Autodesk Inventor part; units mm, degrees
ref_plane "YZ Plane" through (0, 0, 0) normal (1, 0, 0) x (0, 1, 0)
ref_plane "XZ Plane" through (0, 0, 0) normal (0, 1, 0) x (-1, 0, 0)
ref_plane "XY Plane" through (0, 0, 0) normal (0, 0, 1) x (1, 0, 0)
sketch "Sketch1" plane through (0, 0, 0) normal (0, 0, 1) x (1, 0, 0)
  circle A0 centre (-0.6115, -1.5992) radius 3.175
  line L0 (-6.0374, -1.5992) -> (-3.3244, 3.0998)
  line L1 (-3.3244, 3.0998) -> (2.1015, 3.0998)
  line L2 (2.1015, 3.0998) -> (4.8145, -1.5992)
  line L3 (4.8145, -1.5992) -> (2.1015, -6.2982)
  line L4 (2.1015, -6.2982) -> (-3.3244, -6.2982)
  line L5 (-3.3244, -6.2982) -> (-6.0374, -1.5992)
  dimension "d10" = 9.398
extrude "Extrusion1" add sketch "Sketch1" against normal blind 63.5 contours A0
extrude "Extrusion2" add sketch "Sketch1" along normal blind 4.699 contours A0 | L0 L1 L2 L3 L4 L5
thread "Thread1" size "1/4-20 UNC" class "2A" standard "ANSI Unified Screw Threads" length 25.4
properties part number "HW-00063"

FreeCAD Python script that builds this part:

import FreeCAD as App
import Part
import Sketcher
Q = App.Units.Quantity


def add_polygon(sketch, points):
    """Adds a closed chain of lines whose ends are joined by coincident constraints."""
    first, n = sketch.GeometryCount, len(points)
    for a, b in zip(points, points[1:] + points[:1]):
        sketch.addGeometry(Part.LineSegment(App.Vector(*a, 0), App.Vector(*b, 0)), False)
    for i in range(n):
        sketch.addConstraint(Sketcher.Constraint("Coincident", first + i, 2, first + (i + 1) % n, 1))

doc = App.newDocument("Part")
body = doc.addObject("PartDesign::Body", "Body")

# Sketch on XY plane
sketch1 = doc.addObject("Sketcher::SketchObject", "Sketch")
body.addObject(sketch1)
sketch1.AttachmentSupport = (doc.XY_Plane, [""])
sketch1.MapMode = "FlatFace"
sketch1.addGeometry(Part.Circle(App.Vector(-0.6, -1.6, 0), App.Vector(0, 0, 1), 3.2), False)
sketch1.addConstraint([
    Sketcher.Constraint("Diameter", 0, Q("0.25 in")),
    Sketcher.Constraint("DistanceX", 0, 3, -1, 1, Q("0.6115 mm")),
    Sketcher.Constraint("DistanceY", 0, 3, -1, 1, Q("1.5992 mm")),
])
pad1 = doc.addObject("PartDesign::Pad", "Pad")
body.addObject(pad1)
pad1.Profile = sketch1
pad1.Length = Q("2.5 in")
pad1.Reversed = True

# Sketch on XY plane
sketch2 = doc.addObject("Sketcher::SketchObject", "Sketch001")
body.addObject(sketch2)
sketch2.AttachmentSupport = (doc.XY_Plane, [""])
sketch2.MapMode = "FlatFace"
add_polygon(sketch2, [(-3, 3), (-6, -2), (-3, -6), (2, -6), (5, -2), (2, 3)])  # lines 0-5
sketch2.addConstraint([
    Sketcher.Constraint("Horizontal", 2),
    Sketcher.Constraint("Horizontal", 5),
    Sketcher.Constraint("Parallel", 0, 3),
    Sketcher.Constraint("Parallel", 1, 4),
    Sketcher.Constraint("Horizontal", 0, 2, 3, 2),
    Sketcher.Constraint("Vertical", 2, 2, 4, 2),
    Sketcher.Constraint("Vertical", 1, 2, 5, 2),
    Sketcher.Constraint("DistanceY", 2, 2, 4, 2, Q("0.37 in")),
    Sketcher.Constraint("Angle", 0, Q("-120.0003 deg")),
    Sketcher.Constraint("DistanceX", 2, 1, 2, 2, Q("5.426 mm")),
    Sketcher.Constraint("DistanceX", 0, 2, -1, 1, Q("0.2377 in")),
    Sketcher.Constraint("DistanceY", 0, 2, -1, 1, Q("1.5992 mm")),
])
pad2 = doc.addObject("PartDesign::Pad", "Pad001")
body.addObject(pad2)
pad2.Profile = sketch2
pad2.Length = Q("0.185 in")

doc.recompute()
